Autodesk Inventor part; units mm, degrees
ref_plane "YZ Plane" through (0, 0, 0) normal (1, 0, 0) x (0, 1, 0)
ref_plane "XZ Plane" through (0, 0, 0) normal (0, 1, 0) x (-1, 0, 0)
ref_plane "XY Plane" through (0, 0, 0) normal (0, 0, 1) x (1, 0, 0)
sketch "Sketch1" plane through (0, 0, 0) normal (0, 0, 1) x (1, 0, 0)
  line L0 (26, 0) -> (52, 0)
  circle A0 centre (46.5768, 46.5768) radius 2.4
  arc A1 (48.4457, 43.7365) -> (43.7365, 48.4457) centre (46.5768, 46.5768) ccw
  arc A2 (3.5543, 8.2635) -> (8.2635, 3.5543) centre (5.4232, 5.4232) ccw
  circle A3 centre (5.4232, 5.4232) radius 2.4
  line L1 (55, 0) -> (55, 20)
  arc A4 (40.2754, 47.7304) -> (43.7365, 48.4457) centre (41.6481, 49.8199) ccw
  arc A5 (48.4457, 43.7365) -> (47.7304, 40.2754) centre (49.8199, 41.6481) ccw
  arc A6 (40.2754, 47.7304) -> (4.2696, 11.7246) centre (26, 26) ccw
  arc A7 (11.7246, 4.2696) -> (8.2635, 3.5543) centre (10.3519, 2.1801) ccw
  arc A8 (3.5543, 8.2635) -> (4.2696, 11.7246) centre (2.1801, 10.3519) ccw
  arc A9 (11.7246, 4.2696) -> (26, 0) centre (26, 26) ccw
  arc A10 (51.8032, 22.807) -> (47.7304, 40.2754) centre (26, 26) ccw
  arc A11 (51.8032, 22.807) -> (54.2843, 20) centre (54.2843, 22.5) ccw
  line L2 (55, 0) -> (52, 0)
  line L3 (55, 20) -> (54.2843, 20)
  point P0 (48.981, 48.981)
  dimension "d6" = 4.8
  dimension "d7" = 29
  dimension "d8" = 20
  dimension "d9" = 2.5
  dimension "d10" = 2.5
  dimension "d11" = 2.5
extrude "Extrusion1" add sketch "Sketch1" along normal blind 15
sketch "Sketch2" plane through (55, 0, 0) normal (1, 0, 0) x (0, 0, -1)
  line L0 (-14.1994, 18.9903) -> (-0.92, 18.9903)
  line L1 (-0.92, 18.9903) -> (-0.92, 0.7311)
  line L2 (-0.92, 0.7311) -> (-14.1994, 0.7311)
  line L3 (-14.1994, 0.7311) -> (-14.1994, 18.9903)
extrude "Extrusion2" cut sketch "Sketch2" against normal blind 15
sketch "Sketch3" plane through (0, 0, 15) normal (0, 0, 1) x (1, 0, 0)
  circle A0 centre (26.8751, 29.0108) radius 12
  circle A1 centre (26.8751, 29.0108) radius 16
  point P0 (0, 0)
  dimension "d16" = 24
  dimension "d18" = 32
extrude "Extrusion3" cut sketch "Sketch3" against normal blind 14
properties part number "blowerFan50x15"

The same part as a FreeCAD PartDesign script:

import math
import FreeCAD as App
import Part
import Sketcher


def add_polygon(sketch, points):
    """Adds a closed chain of lines whose ends are joined by coincident constraints."""
    first, n = sketch.GeometryCount, len(points)
    for a, b in zip(points, points[1:] + points[:1]):
        sketch.addGeometry(Part.LineSegment(App.Vector(*a, 0), App.Vector(*b, 0)), False)
    for i in range(n):
        sketch.addConstraint(Sketcher.Constraint("Coincident", first + i, 2, first + (i + 1) % n, 1))

doc = App.newDocument("Part")
body = doc.addObject("PartDesign::Body", "Body")

# Sketch on XY plane
sketch1 = doc.addObject("Sketcher::SketchObject", "Sketch")
body.addObject(sketch1)
sketch1.AttachmentSupport = (doc.XY_Plane, [""])
sketch1.MapMode = "FlatFace"
sketch1.addGeometry(Part.ArcOfCircle(Part.Circle(App.Vector(26, 26, 0), App.Vector(0, 0, 1), 26.000007), math.radians(-123.302201), math.radians(-90)), False)
sketch1.addGeometry(Part.LineSegment(App.Vector(26, 0, 0), App.Vector(55, 0, 0)), False)
sketch1.addGeometry(Part.LineSegment(App.Vector(55, 0, 0), App.Vector(55, 20, 0)), False)
sketch1.addGeometry(Part.LineSegment(App.Vector(55, 20, 0), App.Vector(54.2843, 20, 0)), False)
sketch1.addGeometry(Part.ArcOfCircle(Part.Circle(App.Vector(54.2843, 22.5, 0), App.Vector(0, 0, 1), 2.500021), math.radians(172.946334), math.radians(270)), False)
sketch1.addGeometry(Part.ArcOfCircle(Part.Circle(App.Vector(26, 26, 0), App.Vector(0, 0, 1), 25.999949), math.radians(-7.054168), math.radians(33.302201)), False)
sketch1.addGeometry(Part.ArcOfCircle(Part.Circle(App.Vector(49.8199, 41.6481, 0), App.Vector(0, 0, 1), 2.499968), math.radians(123.345544), math.radians(213.30297)), False)
sketch1.addGeometry(Part.ArcOfCircle(Part.Circle(App.Vector(46.5768, 46.5768, 0), App.Vector(0, 0, 1), 3.400013), math.radians(-56.655329), math.radians(146.655329)), False)
sketch1.addGeometry(Part.ArcOfCircle(Part.Circle(App.Vector(41.6481, 49.8199, 0), App.Vector(0, 0, 1), 2.500063), math.radians(-123.30297), math.radians(-33.345544)), False)
sketch1.addGeometry(Part.ArcOfCircle(Part.Circle(App.Vector(26, 26, 0), App.Vector(0, 0, 1), 25.999949), math.radians(56.697799), math.radians(213.302201)), False)
sketch1.addGeometry(Part.ArcOfCircle(Part.Circle(App.Vector(2.1801, 10.3519, 0), App.Vector(0, 0, 1), 2.499968), math.radians(-56.654456), math.radians(33.30297)), False)
sketch1.addGeometry(Part.ArcOfCircle(Part.Circle(App.Vector(5.4232, 5.4232, 0), App.Vector(0, 0, 1), 3.400013), math.radians(123.344671), math.radians(326.655329)), False)
sketch1.addGeometry(Part.ArcOfCircle(Part.Circle(App.Vector(10.3519, 2.1801, 0), App.Vector(0, 0, 1), 2.500063), math.radians(56.69703), math.radians(146.654456)), False)
sketch1.addGeometry(Part.Circle(App.Vector(5.4232, 5.4232, 0), App.Vector(0, 0, 1), 2.4), False)
sketch1.addGeometry(Part.Circle(App.Vector(46.5768, 46.5768, 0), App.Vector(0, 0, 1), 2.4), False)
sketch1.addConstraint(Sketcher.Constraint("Tangent", 0, 2, 1, 1))
sketch1.addConstraint(Sketcher.Constraint("Coincident", 1, 2, 2, 1))
sketch1.addConstraint(Sketcher.Constraint("Coincident", 2, 2, 3, 1))
sketch1.addConstraint(Sketcher.Constraint("Tangent", 3, 2, 4, 2))
sketch1.addConstraint(Sketcher.Constraint("Tangent", 4, 1, 5, 1))
sketch1.addConstraint(Sketcher.Constraint("Tangent", 5, 2, 6, 2))
sketch1.addConstraint(Sketcher.Constraint("Tangent", 6, 1, 7, 1))
sketch1.addConstraint(Sketcher.Constraint("Tangent", 7, 2, 8, 2))
sketch1.addConstraint(Sketcher.Constraint("Tangent", 8, 1, 9, 1))
sketch1.addConstraint(Sketcher.Constraint("Tangent", 9, 2, 10, 2))
sketch1.addConstraint(Sketcher.Constraint("Tangent", 10, 1, 11, 1))
sketch1.addConstraint(Sketcher.Constraint("Tangent", 11, 2, 12, 2))
sketch1.addConstraint(Sketcher.Constraint("Tangent", 12, 1, 0, 1))
sketch1.addConstraint(Sketcher.Constraint("Horizontal", 1))
sketch1.addConstraint(Sketcher.Constraint("Vertical", 2))
sketch1.addConstraint(Sketcher.Constraint("Horizontal", 3))
sketch1.addConstraint(Sketcher.Constraint("Coincident", 5, 3, 0, 3))
sketch1.addConstraint(Sketcher.Constraint("Coincident", 9, 3, 0, 3))
sketch1.addConstraint(Sketcher.Constraint("Coincident", 13, 3, 11, 3))
sketch1.addConstraint(Sketcher.Constraint("Coincident", 14, 3, 7, 3))
sketch1.addConstraint(Sketcher.Constraint("Equal", 0, 5))
sketch1.addConstraint(Sketcher.Constraint("Equal", 4, 6))
sketch1.addConstraint(Sketcher.Constraint("Equal", 6, 8))
sketch1.addConstraint(Sketcher.Constraint("Equal", 5, 9))
sketch1.addConstraint(Sketcher.Constraint("Equal", 8, 10))
sketch1.addConstraint(Sketcher.Constraint("Equal", 7, 11))
sketch1.addConstraint(Sketcher.Constraint("Equal", 10, 12))
sketch1.addConstraint(Sketcher.Constraint("Equal", 13, 14))
sketch1.addConstraint(Sketcher.Constraint("PointOnObject", 0, 2, -1))
sketch1.addConstraint(Sketcher.Constraint("Diameter", 13, 4.8))
sketch1.addConstraint(Sketcher.Constraint("Radius", 4, 2.5))
sketch1.addConstraint(Sketcher.Constraint("DistanceX", 1, 1, 1, 2, 29.0))
sketch1.addConstraint(Sketcher.Constraint("DistanceY", 2, 1, 2, 2, 20.0))
sketch1.addConstraint(Sketcher.Constraint("Radius", 0, 26.0))
sketch1.addConstraint(Sketcher.Constraint("Radius", 7, 3.4))
sketch1.addConstraint(Sketcher.Constraint("DistanceX", -1, 1, 0, 3, 26.0))
sketch1.addConstraint(Sketcher.Constraint("DistanceX", -1, 1, 6, 3, 49.82))
sketch1.addConstraint(Sketcher.Constraint("DistanceY", -1, 1, 8, 3, 49.82))
sketch1.addConstraint(Sketcher.Constraint("DistanceX", -1, 1, 10, 3, 2.18))
sketch1.addConstraint(Sketcher.Constraint("DistanceY", -1, 1, 12, 3, 2.18))
pad1 = doc.addObject("PartDesign::Pad", "Pad")
body.addObject(pad1)
pad1.Profile = sketch1
pad1.Length = 15

# Sketch on YZ plane
sketch2 = doc.addObject("Sketcher::SketchObject", "Sketch001")
body.addObject(sketch2)
sketch2.AttachmentSupport = (doc.YZ_Plane, [""])
sketch2.MapMode = "FlatFace"
sketch2.AttachmentOffset = App.Placement(App.Vector(0, 0, 55), App.Rotation())
add_polygon(sketch2, [(18.9903, 0.92), (18.9903, 14.1994), (0.7311, 14.1994), (0.7311, 0.92)])  # lines 0-3
sketch2.addConstraint(Sketcher.Constraint("Vertical", 0))
sketch2.addConstraint(Sketcher.Constraint("Horizontal", 1))
sketch2.addConstraint(Sketcher.Constraint("Vertical", 2))
sketch2.addConstraint(Sketcher.Constraint("Horizontal", 3))
sketch2.addConstraint(Sketcher.Constraint("DistanceY", -1, 1, 2, 2, 0.92))
sketch2.addConstraint(Sketcher.Constraint("DistanceX", 1, 2, 1, 1, 18.2592))
sketch2.addConstraint(Sketcher.Constraint("DistanceY", 0, 1, 0, 2, 13.2794))
sketch2.addConstraint(Sketcher.Constraint("DistanceX", -1, 1, 1, 2, 0.731))
pocket1 = doc.addObject("PartDesign::Pocket", "Pocket")
body.addObject(pocket1)
pocket1.Profile = sketch2
pocket1.Length = 15

# Sketch on XY plane
sketch3 = doc.addObject("Sketcher::SketchObject", "Sketch002")
body.addObject(sketch3)
sketch3.AttachmentSupport = (doc.XY_Plane, [""])
sketch3.MapMode = "FlatFace"
sketch3.AttachmentOffset = App.Placement(App.Vector(0, 0, 15), App.Rotation())
sketch3.addGeometry(Part.Circle(App.Vector(26.8751, 29.0108, 0), App.Vector(0, 0, 1), 16), False)
sketch3.addGeometry(Part.Circle(App.Vector(26.8751, 29.0108, 0), App.Vector(0, 0, 1), 12), False)
sketch3.addConstraint(Sketcher.Constraint("Coincident", 1, 3, 0, 3))
sketch3.addConstraint(Sketcher.Constraint("Diameter", 0, 32.0))
sketch3.addConstraint(Sketcher.Constraint("Diameter", 1, 24.0))
sketch3.addConstraint(Sketcher.Constraint("DistanceX", -1, 1, 0, 3, 26.875))
sketch3.addConstraint(Sketcher.Constraint("DistanceY", -1, 1, 0, 3, 29.0108))
pocket2 = doc.addObject("PartDesign::Pocket", "Pocket001")
body.addObject(pocket2)
pocket2.Profile = sketch3
pocket2.Length = 14

doc.recompute()
